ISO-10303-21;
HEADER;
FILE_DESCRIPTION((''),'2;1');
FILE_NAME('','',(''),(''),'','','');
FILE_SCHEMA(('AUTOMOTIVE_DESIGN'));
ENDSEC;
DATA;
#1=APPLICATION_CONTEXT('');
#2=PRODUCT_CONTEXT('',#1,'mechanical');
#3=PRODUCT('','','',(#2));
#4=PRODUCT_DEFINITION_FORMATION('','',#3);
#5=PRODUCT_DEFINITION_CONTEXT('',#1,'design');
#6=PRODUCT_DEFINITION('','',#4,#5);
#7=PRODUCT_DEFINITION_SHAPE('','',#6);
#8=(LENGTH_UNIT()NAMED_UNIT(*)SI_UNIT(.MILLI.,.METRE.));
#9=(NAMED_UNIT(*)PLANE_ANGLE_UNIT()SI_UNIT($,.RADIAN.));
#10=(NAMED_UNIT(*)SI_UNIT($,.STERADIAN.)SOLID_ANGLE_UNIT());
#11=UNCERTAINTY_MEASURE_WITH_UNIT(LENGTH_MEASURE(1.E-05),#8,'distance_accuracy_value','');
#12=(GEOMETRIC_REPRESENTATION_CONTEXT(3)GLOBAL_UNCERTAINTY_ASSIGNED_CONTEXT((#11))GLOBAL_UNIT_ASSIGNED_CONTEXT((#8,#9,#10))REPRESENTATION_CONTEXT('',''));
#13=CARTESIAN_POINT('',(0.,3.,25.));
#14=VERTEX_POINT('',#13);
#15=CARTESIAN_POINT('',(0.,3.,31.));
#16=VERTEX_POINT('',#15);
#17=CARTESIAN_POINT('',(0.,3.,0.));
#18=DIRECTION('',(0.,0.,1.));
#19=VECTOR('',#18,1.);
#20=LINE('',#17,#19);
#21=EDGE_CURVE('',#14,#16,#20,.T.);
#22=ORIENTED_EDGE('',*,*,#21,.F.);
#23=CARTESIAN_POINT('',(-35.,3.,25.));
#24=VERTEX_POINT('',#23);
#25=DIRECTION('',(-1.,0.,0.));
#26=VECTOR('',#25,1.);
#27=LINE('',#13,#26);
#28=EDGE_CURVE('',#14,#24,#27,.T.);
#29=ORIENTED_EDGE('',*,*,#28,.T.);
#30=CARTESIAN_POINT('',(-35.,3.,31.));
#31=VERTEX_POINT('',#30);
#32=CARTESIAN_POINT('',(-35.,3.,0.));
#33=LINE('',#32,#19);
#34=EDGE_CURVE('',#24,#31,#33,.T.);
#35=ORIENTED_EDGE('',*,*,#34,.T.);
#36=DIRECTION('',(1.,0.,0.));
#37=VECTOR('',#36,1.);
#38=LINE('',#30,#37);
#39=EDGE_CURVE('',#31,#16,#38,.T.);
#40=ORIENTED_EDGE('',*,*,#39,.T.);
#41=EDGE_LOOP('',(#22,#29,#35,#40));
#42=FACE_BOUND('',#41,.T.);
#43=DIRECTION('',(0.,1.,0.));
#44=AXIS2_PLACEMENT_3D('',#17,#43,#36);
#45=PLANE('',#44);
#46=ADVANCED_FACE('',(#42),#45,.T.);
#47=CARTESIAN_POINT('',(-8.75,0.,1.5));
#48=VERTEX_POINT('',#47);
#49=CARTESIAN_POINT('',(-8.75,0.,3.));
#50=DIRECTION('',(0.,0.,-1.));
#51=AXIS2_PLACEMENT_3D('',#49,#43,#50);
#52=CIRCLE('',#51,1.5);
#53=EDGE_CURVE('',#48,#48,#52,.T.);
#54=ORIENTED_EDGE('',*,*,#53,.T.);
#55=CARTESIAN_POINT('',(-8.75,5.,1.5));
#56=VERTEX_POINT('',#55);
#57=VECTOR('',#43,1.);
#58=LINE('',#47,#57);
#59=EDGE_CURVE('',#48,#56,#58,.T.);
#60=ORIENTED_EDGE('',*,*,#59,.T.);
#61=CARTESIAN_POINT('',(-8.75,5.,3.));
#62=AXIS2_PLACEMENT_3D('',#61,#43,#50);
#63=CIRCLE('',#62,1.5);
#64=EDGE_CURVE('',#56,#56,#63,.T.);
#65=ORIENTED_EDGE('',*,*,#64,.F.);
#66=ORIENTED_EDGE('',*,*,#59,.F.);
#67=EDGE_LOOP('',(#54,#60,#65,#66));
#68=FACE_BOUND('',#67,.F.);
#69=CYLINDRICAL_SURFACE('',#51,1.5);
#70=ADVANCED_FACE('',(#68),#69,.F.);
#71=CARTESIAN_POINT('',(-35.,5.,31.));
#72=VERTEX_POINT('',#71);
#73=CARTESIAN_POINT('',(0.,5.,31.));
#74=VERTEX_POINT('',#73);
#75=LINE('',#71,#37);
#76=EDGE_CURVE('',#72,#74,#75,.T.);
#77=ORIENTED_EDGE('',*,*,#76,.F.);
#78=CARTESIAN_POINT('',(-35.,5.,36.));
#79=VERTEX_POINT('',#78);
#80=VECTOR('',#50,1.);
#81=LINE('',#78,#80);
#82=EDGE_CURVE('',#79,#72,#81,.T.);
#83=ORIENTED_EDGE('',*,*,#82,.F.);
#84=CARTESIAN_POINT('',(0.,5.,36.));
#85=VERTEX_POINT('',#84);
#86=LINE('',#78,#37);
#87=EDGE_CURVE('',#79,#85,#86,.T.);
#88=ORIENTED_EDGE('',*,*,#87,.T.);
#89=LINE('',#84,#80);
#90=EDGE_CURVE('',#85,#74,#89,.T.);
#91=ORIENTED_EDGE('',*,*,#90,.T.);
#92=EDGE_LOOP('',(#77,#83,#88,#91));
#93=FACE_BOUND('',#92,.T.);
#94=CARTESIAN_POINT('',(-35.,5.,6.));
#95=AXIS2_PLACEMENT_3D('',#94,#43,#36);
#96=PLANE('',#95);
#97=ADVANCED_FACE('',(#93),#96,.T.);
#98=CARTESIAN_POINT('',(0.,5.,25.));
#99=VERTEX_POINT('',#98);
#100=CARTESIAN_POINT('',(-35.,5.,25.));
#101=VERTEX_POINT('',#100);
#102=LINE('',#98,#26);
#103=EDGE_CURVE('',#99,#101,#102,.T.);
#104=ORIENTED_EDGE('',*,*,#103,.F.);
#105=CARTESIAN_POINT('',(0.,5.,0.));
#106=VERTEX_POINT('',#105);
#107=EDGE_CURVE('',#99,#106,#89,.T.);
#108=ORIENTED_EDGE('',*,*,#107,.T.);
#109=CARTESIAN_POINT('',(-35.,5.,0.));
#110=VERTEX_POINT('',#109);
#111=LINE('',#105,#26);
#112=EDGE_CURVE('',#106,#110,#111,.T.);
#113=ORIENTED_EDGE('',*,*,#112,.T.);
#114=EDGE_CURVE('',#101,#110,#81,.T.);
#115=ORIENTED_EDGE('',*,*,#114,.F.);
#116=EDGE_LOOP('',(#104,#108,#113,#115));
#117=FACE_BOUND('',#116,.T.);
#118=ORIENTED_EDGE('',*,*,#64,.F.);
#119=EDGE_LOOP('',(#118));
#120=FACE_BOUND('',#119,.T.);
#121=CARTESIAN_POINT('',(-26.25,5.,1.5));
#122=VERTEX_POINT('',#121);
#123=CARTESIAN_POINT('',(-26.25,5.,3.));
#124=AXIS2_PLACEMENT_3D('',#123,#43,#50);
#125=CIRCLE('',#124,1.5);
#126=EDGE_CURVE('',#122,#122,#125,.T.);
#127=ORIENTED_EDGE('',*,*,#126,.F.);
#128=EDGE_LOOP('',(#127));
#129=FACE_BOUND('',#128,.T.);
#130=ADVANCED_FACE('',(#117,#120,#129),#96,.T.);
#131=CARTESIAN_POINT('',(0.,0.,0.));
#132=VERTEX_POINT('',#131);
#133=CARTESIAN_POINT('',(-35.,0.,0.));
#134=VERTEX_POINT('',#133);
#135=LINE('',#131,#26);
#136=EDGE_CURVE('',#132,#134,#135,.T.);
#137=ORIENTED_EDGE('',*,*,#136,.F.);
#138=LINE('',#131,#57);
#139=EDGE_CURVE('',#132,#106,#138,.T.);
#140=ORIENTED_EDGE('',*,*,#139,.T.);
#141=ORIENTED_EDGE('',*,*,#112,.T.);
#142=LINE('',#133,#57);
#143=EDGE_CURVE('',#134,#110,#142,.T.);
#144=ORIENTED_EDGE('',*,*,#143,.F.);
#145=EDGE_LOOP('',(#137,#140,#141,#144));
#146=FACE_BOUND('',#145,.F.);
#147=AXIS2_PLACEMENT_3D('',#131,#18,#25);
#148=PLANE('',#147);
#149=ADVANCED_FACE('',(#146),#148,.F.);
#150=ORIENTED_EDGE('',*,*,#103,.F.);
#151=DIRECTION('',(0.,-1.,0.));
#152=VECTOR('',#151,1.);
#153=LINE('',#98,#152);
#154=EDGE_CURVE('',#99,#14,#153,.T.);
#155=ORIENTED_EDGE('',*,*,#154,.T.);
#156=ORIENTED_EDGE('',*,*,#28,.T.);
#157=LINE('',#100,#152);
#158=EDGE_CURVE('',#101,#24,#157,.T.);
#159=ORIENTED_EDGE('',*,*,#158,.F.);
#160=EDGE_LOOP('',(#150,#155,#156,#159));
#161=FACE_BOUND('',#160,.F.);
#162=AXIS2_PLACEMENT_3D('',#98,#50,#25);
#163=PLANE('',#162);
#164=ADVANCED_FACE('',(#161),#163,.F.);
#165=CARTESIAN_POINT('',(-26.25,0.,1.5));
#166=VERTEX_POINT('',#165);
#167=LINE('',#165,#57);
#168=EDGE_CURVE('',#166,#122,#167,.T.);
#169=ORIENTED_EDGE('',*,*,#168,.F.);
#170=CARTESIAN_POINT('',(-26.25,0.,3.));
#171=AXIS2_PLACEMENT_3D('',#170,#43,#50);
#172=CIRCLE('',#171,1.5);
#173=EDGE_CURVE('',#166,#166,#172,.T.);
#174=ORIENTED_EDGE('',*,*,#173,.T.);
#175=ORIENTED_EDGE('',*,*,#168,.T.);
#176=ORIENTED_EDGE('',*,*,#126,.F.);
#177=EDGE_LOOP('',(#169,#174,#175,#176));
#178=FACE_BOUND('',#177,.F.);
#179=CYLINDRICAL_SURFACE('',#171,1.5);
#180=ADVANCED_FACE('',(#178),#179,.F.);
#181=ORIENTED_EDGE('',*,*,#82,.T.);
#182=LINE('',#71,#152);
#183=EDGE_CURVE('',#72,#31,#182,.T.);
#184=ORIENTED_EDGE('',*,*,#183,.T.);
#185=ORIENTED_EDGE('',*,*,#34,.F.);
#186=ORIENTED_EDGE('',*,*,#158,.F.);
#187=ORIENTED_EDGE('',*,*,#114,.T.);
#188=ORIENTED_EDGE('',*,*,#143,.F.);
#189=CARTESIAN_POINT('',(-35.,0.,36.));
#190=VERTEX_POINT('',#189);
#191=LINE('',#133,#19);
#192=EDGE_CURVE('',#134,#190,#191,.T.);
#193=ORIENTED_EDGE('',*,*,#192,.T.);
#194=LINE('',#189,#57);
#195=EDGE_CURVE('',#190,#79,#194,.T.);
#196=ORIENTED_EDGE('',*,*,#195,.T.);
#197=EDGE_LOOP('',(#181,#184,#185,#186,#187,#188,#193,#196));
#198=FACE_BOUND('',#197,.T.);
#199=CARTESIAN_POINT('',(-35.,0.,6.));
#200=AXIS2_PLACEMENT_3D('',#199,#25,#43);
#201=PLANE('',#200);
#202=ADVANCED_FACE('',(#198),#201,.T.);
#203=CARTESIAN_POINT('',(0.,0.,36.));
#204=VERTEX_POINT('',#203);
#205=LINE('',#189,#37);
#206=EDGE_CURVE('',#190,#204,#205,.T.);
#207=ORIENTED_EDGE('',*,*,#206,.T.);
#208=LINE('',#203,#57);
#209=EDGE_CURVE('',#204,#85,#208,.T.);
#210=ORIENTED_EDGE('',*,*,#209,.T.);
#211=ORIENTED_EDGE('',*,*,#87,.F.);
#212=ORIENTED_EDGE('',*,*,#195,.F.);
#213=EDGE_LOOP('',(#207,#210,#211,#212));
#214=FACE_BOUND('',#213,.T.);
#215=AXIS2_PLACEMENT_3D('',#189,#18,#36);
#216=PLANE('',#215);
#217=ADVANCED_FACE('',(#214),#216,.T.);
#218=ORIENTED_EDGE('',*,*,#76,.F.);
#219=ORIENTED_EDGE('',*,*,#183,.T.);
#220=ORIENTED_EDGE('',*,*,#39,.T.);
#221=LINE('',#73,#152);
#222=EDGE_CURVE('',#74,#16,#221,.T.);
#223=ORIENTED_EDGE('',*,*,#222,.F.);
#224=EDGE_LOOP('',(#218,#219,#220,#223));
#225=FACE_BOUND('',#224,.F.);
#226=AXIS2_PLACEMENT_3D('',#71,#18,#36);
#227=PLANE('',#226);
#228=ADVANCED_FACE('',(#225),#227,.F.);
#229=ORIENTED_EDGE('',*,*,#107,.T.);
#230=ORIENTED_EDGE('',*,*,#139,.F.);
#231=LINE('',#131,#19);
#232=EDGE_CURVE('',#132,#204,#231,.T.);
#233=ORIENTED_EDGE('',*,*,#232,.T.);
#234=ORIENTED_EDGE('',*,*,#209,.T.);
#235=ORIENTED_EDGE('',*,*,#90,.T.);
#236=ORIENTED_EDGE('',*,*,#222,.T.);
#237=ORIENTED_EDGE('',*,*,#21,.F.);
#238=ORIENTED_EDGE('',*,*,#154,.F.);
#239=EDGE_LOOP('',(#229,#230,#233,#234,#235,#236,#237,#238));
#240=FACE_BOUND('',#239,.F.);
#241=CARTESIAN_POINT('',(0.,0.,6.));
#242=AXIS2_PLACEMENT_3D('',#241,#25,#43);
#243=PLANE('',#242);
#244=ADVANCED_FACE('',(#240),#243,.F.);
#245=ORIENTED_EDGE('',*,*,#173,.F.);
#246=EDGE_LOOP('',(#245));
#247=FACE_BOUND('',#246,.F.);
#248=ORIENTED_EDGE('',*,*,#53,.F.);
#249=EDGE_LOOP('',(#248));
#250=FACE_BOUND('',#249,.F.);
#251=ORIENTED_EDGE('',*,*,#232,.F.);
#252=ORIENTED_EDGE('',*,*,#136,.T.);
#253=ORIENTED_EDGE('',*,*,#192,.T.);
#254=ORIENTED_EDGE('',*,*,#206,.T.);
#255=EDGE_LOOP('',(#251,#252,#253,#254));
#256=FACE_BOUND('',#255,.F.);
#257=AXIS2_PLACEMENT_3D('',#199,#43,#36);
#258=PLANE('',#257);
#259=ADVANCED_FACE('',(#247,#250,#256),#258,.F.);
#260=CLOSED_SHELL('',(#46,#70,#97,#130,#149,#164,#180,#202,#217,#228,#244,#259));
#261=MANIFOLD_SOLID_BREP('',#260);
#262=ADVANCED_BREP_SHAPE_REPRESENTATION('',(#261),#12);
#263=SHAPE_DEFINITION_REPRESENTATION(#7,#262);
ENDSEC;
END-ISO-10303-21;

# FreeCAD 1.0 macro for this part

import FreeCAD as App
import Part
import Sketcher

doc = App.newDocument("Part")
params = doc.addObject("Spreadsheet::Sheet", "Params")
for row, (alias, value) in enumerate([
    ("sketch1_width", "35 mm"),
    ("sketch1_height", "6 mm"),
    ("pad1_length", "5 mm"),
    ("sketch2_width", "35 mm"),
    ("sketch2_height", "5 mm"),
    ("pad2_length", "30 mm"),
    ("sketch3_width", "35 mm"),
    ("sketch3_height", "6 mm"),
    ("pocket1_length", "2 mm"),
    ("sketch4_diameter", "3 mm"),
    ("hole_diameter", "3 mm"),
    ("hole_depth", "8 mm"),
], start=1):
    params.set(f"A{row}", alias)
    params.set(f"B{row}", "=" + value)
    params.setAlias(f"B{row}", alias)

body = doc.addObject("PartDesign::Body", "Body")

# Sketch on XZ plane
sketch1 = body.newObject("Sketcher::SketchObject", "Sketch")
sketch1.AttachmentSupport = (doc.getObject("XZ_Plane"), [""])
sketch1.MapMode = "FlatFace"
sketch1.addGeometry([
    Part.LineSegment(App.Vector(0, 0, 0), App.Vector(-35, 0, 0)),
    Part.LineSegment(App.Vector(-35, 0, 0), App.Vector(-35, 6, 0)),
    Part.LineSegment(App.Vector(-35, 6, 0), App.Vector(0, 6, 0)),
    Part.LineSegment(App.Vector(0, 6, 0), App.Vector(0, 0, 0)),
], False)
sketch1.addConstraint([
    Sketcher.Constraint("Coincident", 0, 2, 1, 1),
    Sketcher.Constraint("Coincident", 1, 2, 2, 1),
    Sketcher.Constraint("Coincident", 2, 2, 3, 1),
    Sketcher.Constraint("Coincident", 3, 2, 0, 1),
    Sketcher.Constraint("Horizontal", 0),
    Sketcher.Constraint("Vertical", 1),
    Sketcher.Constraint("Horizontal", 2),
    Sketcher.Constraint("Vertical", 3),
    Sketcher.Constraint("Coincident", 3, 2, -1, 1),
    Sketcher.Constraint("DistanceX", 0, 2, 0, 1, 35.0),
    Sketcher.Constraint("DistanceY", 1, 1, 1, 2, 6.0),
])
sketch1.setExpression("Constraints[9]", "Params.sketch1_width")
sketch1.setExpression("Constraints[10]", "Params.sketch1_height")
pad1 = body.newObject("PartDesign::Pad", "Pad")
pad1.Profile = sketch1
pad1.setExpression("Length", "Params.pad1_length")
pad1.Reversed = True

# Sketch on XY plane
sketch2 = body.newObject("Sketcher::SketchObject", "Sketch001")
sketch2.AttachmentSupport = (doc.getObject("XY_Plane"), [""])
sketch2.MapMode = "FlatFace"
sketch2.AttachmentOffset = App.Placement(App.Vector(0, 0, 6), App.Rotation())
sketch2.addGeometry([
    Part.LineSegment(App.Vector(-35, 5, 0), App.Vector(-35, 0, 0)),
    Part.LineSegment(App.Vector(-35, 0, 0), App.Vector(0, 0, 0)),
    Part.LineSegment(App.Vector(0, 0, 0), App.Vector(0, 5, 0)),
    Part.LineSegment(App.Vector(0, 5, 0), App.Vector(-35, 5, 0)),
], False)
sketch2.addConstraint([
    Sketcher.Constraint("Coincident", 0, 2, 1, 1),
    Sketcher.Constraint("Coincident", 1, 2, 2, 1),
    Sketcher.Constraint("Coincident", 2, 2, 3, 1),
    Sketcher.Constraint("Coincident", 3, 2, 0, 1),
    Sketcher.Constraint("Vertical", 0),
    Sketcher.Constraint("Horizontal", 1),
    Sketcher.Constraint("Vertical", 2),
    Sketcher.Constraint("Horizontal", 3),
    Sketcher.Constraint("Coincident", 1, 2, -1, 1),
    Sketcher.Constraint("DistanceX", 1, 1, 1, 2, 35.0),
    Sketcher.Constraint("DistanceY", 0, 2, 0, 1, 5.0),
])
sketch2.setExpression("Constraints[9]", "Params.sketch2_width")
sketch2.setExpression("Constraints[10]", "Params.sketch2_height")
pad2 = body.newObject("PartDesign::Pad", "Pad001")
pad2.Profile = sketch2
pad2.setExpression("Length", "Params.pad2_length")

# Sketch on XZ plane
sketch3 = body.newObject("Sketcher::SketchObject", "Sketch002")
sketch3.AttachmentSupport = (doc.getObject("XZ_Plane"), [""])
sketch3.MapMode = "FlatFace"
sketch3.AttachmentOffset = App.Placement(App.Vector(0, 0, -5), App.Rotation())
sketch3.addGeometry([
    Part.LineSegment(App.Vector(0, 31, 0), App.Vector(0, 25, 0)),
    Part.LineSegment(App.Vector(0, 25, 0), App.Vector(-35, 25, 0)),
    Part.LineSegment(App.Vector(-35, 25, 0), App.Vector(-35, 31, 0)),
    Part.LineSegment(App.Vector(-35, 31, 0), App.Vector(0, 31, 0)),
], False)
sketch3.addConstraint([
    Sketcher.Constraint("Coincident", 0, 2, 1, 1),
    Sketcher.Constraint("Coincident", 1, 2, 2, 1),
    Sketcher.Constraint("Coincident", 2, 2, 3, 1),
    Sketcher.Constraint("Coincident", 3, 2, 0, 1),
    Sketcher.Constraint("Vertical", 0),
    Sketcher.Constraint("Horizontal", 1),
    Sketcher.Constraint("Vertical", 2),
    Sketcher.Constraint("Horizontal", 3),
    Sketcher.Constraint("PointOnObject", 0, 2, -2),
    Sketcher.Constraint("DistanceY", -1, 1, 0, 2, 25.0),
    Sketcher.Constraint("DistanceX", 1, 2, 1, 1, 35.0),
    Sketcher.Constraint("DistanceY", 0, 2, 0, 1, 6.0),
])
sketch3.setExpression("Constraints[10]", "Params.sketch3_width")
sketch3.setExpression("Constraints[11]", "Params.sketch3_height")
pocket1 = body.newObject("PartDesign::Pocket", "Pocket")
pocket1.Profile = sketch3
pocket1.setExpression("Length", "Params.pocket1_length")
pocket1.Reversed = True

# Sketch on XZ plane
sketch4 = body.newObject("Sketcher::SketchObject", "Sketch003")
sketch4.AttachmentSupport = (doc.getObject("XZ_Plane"), [""])
sketch4.MapMode = "FlatFace"
sketch4.addGeometry([
    Part.Circle(App.Vector(-8.8, 3, 0), App.Vector(0, 0, 1), 1.5),
    Part.Circle(App.Vector(-26.2, 3, 0), App.Vector(0, 0, 1), 1.5),
], False)
sketch4.addConstraint([
    Sketcher.Constraint("Equal", 0, 1),
    Sketcher.Constraint("Horizontal", 0, 3, 1, 3),
    Sketcher.Constraint("Diameter", 0, 3.0),
    Sketcher.Constraint("DistanceY", -1, 1, 0, 3, 3.0),
    Sketcher.Constraint("DistanceX", 1, 3, 0, 3, 17.5),
    Sketcher.Constraint("DistanceX", 0, 3, -1, 1, 8.75),
])
sketch4.setExpression("Constraints[2]", "Params.sketch4_diameter")
doc.recompute()
hole = body.newObject("PartDesign::Hole", "Hole")
hole.Profile = sketch4
hole.ThreadType = "None"
hole.setExpression("Diameter", "Params.hole_diameter")
hole.DepthType = "Dimension"
hole.setExpression("Depth", "Params.hole_depth")
hole.DrillPoint = "Angled"
hole.DrillPointAngle = 118

doc.recompute()
